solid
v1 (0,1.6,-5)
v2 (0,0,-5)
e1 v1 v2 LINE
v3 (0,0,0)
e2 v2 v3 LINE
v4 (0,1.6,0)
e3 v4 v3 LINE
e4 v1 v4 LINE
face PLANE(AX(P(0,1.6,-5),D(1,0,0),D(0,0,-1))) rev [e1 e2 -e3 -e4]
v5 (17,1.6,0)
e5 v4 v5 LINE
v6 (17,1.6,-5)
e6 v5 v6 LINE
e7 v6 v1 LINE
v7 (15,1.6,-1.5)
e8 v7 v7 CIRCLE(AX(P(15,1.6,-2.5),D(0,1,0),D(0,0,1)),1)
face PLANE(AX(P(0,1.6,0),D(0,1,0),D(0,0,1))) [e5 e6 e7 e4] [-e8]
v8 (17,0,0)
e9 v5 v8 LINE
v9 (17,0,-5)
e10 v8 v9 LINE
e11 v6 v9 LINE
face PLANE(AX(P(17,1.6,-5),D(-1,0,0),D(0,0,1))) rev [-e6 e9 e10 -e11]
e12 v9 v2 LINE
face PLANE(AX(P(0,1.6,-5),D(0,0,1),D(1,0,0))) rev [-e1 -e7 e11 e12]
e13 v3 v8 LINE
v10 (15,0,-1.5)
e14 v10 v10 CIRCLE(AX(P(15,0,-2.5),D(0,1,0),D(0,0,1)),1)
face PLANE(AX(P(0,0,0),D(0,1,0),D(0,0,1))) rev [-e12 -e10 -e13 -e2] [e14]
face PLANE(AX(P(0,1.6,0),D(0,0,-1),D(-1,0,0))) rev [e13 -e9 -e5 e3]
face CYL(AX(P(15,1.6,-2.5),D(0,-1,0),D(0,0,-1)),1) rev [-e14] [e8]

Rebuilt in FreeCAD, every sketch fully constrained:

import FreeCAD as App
import Part
import Sketcher
from FreeCAD import Vector

doc = App.newDocument("Part")
body = doc.addObject("PartDesign::Body", "Body")

# Sketch on XZ plane
sketch1 = body.newObject("Sketcher::SketchObject", "Sketch")
sketch1.AttachmentSupport = (doc.getObject("XZ_Plane"), [""])
sketch1.MapMode = "FlatFace"
sketch1.addGeometry(Part.LineSegment(Vector(0, -5, 0), Vector(0, 0, 0)), False)
sketch1.addGeometry(Part.LineSegment(Vector(0, 0, 0), Vector(17, 0, 0)), False)
sketch1.addGeometry(Part.LineSegment(Vector(17, 0, 0), Vector(17, -5, 0)), False)
sketch1.addGeometry(Part.LineSegment(Vector(17, -5, 0), Vector(0, -5, 0)), False)
sketch1.addGeometry(Part.Circle(Vector(15, -2.5, 0), Vector(0, 0, 1), 1), False)
sketch1.addConstraint(Sketcher.Constraint("Coincident", 0, 2, 1, 1))
sketch1.addConstraint(Sketcher.Constraint("Coincident", 1, 2, 2, 1))
sketch1.addConstraint(Sketcher.Constraint("Coincident", 2, 2, 3, 1))
sketch1.addConstraint(Sketcher.Constraint("Coincident", 3, 2, 0, 1))
sketch1.addConstraint(Sketcher.Constraint("Vertical", 0))
sketch1.addConstraint(Sketcher.Constraint("Horizontal", 1))
sketch1.addConstraint(Sketcher.Constraint("Vertical", 2))
sketch1.addConstraint(Sketcher.Constraint("Horizontal", 3))
sketch1.addConstraint(Sketcher.Constraint("Coincident", 0, 2, -1, 1))
sketch1.addConstraint(Sketcher.Constraint("Diameter", 4, 2.0))
sketch1.addConstraint(Sketcher.Constraint("DistanceX", 1, 1, 1, 2, 17.0))
sketch1.addConstraint(Sketcher.Constraint("DistanceY", 0, 1, 0, 2, 5.0))
sketch1.addConstraint(Sketcher.Constraint("DistanceX", -1, 1, 4, 3, 15.0))
sketch1.addConstraint(Sketcher.Constraint("DistanceY", 4, 3, -1, 1, 2.5))
pad1 = body.newObject("PartDesign::Pad", "Pad")
pad1.Profile = sketch1
pad1.Length = 1.6
pad1.Reversed = True

doc.recompute()
